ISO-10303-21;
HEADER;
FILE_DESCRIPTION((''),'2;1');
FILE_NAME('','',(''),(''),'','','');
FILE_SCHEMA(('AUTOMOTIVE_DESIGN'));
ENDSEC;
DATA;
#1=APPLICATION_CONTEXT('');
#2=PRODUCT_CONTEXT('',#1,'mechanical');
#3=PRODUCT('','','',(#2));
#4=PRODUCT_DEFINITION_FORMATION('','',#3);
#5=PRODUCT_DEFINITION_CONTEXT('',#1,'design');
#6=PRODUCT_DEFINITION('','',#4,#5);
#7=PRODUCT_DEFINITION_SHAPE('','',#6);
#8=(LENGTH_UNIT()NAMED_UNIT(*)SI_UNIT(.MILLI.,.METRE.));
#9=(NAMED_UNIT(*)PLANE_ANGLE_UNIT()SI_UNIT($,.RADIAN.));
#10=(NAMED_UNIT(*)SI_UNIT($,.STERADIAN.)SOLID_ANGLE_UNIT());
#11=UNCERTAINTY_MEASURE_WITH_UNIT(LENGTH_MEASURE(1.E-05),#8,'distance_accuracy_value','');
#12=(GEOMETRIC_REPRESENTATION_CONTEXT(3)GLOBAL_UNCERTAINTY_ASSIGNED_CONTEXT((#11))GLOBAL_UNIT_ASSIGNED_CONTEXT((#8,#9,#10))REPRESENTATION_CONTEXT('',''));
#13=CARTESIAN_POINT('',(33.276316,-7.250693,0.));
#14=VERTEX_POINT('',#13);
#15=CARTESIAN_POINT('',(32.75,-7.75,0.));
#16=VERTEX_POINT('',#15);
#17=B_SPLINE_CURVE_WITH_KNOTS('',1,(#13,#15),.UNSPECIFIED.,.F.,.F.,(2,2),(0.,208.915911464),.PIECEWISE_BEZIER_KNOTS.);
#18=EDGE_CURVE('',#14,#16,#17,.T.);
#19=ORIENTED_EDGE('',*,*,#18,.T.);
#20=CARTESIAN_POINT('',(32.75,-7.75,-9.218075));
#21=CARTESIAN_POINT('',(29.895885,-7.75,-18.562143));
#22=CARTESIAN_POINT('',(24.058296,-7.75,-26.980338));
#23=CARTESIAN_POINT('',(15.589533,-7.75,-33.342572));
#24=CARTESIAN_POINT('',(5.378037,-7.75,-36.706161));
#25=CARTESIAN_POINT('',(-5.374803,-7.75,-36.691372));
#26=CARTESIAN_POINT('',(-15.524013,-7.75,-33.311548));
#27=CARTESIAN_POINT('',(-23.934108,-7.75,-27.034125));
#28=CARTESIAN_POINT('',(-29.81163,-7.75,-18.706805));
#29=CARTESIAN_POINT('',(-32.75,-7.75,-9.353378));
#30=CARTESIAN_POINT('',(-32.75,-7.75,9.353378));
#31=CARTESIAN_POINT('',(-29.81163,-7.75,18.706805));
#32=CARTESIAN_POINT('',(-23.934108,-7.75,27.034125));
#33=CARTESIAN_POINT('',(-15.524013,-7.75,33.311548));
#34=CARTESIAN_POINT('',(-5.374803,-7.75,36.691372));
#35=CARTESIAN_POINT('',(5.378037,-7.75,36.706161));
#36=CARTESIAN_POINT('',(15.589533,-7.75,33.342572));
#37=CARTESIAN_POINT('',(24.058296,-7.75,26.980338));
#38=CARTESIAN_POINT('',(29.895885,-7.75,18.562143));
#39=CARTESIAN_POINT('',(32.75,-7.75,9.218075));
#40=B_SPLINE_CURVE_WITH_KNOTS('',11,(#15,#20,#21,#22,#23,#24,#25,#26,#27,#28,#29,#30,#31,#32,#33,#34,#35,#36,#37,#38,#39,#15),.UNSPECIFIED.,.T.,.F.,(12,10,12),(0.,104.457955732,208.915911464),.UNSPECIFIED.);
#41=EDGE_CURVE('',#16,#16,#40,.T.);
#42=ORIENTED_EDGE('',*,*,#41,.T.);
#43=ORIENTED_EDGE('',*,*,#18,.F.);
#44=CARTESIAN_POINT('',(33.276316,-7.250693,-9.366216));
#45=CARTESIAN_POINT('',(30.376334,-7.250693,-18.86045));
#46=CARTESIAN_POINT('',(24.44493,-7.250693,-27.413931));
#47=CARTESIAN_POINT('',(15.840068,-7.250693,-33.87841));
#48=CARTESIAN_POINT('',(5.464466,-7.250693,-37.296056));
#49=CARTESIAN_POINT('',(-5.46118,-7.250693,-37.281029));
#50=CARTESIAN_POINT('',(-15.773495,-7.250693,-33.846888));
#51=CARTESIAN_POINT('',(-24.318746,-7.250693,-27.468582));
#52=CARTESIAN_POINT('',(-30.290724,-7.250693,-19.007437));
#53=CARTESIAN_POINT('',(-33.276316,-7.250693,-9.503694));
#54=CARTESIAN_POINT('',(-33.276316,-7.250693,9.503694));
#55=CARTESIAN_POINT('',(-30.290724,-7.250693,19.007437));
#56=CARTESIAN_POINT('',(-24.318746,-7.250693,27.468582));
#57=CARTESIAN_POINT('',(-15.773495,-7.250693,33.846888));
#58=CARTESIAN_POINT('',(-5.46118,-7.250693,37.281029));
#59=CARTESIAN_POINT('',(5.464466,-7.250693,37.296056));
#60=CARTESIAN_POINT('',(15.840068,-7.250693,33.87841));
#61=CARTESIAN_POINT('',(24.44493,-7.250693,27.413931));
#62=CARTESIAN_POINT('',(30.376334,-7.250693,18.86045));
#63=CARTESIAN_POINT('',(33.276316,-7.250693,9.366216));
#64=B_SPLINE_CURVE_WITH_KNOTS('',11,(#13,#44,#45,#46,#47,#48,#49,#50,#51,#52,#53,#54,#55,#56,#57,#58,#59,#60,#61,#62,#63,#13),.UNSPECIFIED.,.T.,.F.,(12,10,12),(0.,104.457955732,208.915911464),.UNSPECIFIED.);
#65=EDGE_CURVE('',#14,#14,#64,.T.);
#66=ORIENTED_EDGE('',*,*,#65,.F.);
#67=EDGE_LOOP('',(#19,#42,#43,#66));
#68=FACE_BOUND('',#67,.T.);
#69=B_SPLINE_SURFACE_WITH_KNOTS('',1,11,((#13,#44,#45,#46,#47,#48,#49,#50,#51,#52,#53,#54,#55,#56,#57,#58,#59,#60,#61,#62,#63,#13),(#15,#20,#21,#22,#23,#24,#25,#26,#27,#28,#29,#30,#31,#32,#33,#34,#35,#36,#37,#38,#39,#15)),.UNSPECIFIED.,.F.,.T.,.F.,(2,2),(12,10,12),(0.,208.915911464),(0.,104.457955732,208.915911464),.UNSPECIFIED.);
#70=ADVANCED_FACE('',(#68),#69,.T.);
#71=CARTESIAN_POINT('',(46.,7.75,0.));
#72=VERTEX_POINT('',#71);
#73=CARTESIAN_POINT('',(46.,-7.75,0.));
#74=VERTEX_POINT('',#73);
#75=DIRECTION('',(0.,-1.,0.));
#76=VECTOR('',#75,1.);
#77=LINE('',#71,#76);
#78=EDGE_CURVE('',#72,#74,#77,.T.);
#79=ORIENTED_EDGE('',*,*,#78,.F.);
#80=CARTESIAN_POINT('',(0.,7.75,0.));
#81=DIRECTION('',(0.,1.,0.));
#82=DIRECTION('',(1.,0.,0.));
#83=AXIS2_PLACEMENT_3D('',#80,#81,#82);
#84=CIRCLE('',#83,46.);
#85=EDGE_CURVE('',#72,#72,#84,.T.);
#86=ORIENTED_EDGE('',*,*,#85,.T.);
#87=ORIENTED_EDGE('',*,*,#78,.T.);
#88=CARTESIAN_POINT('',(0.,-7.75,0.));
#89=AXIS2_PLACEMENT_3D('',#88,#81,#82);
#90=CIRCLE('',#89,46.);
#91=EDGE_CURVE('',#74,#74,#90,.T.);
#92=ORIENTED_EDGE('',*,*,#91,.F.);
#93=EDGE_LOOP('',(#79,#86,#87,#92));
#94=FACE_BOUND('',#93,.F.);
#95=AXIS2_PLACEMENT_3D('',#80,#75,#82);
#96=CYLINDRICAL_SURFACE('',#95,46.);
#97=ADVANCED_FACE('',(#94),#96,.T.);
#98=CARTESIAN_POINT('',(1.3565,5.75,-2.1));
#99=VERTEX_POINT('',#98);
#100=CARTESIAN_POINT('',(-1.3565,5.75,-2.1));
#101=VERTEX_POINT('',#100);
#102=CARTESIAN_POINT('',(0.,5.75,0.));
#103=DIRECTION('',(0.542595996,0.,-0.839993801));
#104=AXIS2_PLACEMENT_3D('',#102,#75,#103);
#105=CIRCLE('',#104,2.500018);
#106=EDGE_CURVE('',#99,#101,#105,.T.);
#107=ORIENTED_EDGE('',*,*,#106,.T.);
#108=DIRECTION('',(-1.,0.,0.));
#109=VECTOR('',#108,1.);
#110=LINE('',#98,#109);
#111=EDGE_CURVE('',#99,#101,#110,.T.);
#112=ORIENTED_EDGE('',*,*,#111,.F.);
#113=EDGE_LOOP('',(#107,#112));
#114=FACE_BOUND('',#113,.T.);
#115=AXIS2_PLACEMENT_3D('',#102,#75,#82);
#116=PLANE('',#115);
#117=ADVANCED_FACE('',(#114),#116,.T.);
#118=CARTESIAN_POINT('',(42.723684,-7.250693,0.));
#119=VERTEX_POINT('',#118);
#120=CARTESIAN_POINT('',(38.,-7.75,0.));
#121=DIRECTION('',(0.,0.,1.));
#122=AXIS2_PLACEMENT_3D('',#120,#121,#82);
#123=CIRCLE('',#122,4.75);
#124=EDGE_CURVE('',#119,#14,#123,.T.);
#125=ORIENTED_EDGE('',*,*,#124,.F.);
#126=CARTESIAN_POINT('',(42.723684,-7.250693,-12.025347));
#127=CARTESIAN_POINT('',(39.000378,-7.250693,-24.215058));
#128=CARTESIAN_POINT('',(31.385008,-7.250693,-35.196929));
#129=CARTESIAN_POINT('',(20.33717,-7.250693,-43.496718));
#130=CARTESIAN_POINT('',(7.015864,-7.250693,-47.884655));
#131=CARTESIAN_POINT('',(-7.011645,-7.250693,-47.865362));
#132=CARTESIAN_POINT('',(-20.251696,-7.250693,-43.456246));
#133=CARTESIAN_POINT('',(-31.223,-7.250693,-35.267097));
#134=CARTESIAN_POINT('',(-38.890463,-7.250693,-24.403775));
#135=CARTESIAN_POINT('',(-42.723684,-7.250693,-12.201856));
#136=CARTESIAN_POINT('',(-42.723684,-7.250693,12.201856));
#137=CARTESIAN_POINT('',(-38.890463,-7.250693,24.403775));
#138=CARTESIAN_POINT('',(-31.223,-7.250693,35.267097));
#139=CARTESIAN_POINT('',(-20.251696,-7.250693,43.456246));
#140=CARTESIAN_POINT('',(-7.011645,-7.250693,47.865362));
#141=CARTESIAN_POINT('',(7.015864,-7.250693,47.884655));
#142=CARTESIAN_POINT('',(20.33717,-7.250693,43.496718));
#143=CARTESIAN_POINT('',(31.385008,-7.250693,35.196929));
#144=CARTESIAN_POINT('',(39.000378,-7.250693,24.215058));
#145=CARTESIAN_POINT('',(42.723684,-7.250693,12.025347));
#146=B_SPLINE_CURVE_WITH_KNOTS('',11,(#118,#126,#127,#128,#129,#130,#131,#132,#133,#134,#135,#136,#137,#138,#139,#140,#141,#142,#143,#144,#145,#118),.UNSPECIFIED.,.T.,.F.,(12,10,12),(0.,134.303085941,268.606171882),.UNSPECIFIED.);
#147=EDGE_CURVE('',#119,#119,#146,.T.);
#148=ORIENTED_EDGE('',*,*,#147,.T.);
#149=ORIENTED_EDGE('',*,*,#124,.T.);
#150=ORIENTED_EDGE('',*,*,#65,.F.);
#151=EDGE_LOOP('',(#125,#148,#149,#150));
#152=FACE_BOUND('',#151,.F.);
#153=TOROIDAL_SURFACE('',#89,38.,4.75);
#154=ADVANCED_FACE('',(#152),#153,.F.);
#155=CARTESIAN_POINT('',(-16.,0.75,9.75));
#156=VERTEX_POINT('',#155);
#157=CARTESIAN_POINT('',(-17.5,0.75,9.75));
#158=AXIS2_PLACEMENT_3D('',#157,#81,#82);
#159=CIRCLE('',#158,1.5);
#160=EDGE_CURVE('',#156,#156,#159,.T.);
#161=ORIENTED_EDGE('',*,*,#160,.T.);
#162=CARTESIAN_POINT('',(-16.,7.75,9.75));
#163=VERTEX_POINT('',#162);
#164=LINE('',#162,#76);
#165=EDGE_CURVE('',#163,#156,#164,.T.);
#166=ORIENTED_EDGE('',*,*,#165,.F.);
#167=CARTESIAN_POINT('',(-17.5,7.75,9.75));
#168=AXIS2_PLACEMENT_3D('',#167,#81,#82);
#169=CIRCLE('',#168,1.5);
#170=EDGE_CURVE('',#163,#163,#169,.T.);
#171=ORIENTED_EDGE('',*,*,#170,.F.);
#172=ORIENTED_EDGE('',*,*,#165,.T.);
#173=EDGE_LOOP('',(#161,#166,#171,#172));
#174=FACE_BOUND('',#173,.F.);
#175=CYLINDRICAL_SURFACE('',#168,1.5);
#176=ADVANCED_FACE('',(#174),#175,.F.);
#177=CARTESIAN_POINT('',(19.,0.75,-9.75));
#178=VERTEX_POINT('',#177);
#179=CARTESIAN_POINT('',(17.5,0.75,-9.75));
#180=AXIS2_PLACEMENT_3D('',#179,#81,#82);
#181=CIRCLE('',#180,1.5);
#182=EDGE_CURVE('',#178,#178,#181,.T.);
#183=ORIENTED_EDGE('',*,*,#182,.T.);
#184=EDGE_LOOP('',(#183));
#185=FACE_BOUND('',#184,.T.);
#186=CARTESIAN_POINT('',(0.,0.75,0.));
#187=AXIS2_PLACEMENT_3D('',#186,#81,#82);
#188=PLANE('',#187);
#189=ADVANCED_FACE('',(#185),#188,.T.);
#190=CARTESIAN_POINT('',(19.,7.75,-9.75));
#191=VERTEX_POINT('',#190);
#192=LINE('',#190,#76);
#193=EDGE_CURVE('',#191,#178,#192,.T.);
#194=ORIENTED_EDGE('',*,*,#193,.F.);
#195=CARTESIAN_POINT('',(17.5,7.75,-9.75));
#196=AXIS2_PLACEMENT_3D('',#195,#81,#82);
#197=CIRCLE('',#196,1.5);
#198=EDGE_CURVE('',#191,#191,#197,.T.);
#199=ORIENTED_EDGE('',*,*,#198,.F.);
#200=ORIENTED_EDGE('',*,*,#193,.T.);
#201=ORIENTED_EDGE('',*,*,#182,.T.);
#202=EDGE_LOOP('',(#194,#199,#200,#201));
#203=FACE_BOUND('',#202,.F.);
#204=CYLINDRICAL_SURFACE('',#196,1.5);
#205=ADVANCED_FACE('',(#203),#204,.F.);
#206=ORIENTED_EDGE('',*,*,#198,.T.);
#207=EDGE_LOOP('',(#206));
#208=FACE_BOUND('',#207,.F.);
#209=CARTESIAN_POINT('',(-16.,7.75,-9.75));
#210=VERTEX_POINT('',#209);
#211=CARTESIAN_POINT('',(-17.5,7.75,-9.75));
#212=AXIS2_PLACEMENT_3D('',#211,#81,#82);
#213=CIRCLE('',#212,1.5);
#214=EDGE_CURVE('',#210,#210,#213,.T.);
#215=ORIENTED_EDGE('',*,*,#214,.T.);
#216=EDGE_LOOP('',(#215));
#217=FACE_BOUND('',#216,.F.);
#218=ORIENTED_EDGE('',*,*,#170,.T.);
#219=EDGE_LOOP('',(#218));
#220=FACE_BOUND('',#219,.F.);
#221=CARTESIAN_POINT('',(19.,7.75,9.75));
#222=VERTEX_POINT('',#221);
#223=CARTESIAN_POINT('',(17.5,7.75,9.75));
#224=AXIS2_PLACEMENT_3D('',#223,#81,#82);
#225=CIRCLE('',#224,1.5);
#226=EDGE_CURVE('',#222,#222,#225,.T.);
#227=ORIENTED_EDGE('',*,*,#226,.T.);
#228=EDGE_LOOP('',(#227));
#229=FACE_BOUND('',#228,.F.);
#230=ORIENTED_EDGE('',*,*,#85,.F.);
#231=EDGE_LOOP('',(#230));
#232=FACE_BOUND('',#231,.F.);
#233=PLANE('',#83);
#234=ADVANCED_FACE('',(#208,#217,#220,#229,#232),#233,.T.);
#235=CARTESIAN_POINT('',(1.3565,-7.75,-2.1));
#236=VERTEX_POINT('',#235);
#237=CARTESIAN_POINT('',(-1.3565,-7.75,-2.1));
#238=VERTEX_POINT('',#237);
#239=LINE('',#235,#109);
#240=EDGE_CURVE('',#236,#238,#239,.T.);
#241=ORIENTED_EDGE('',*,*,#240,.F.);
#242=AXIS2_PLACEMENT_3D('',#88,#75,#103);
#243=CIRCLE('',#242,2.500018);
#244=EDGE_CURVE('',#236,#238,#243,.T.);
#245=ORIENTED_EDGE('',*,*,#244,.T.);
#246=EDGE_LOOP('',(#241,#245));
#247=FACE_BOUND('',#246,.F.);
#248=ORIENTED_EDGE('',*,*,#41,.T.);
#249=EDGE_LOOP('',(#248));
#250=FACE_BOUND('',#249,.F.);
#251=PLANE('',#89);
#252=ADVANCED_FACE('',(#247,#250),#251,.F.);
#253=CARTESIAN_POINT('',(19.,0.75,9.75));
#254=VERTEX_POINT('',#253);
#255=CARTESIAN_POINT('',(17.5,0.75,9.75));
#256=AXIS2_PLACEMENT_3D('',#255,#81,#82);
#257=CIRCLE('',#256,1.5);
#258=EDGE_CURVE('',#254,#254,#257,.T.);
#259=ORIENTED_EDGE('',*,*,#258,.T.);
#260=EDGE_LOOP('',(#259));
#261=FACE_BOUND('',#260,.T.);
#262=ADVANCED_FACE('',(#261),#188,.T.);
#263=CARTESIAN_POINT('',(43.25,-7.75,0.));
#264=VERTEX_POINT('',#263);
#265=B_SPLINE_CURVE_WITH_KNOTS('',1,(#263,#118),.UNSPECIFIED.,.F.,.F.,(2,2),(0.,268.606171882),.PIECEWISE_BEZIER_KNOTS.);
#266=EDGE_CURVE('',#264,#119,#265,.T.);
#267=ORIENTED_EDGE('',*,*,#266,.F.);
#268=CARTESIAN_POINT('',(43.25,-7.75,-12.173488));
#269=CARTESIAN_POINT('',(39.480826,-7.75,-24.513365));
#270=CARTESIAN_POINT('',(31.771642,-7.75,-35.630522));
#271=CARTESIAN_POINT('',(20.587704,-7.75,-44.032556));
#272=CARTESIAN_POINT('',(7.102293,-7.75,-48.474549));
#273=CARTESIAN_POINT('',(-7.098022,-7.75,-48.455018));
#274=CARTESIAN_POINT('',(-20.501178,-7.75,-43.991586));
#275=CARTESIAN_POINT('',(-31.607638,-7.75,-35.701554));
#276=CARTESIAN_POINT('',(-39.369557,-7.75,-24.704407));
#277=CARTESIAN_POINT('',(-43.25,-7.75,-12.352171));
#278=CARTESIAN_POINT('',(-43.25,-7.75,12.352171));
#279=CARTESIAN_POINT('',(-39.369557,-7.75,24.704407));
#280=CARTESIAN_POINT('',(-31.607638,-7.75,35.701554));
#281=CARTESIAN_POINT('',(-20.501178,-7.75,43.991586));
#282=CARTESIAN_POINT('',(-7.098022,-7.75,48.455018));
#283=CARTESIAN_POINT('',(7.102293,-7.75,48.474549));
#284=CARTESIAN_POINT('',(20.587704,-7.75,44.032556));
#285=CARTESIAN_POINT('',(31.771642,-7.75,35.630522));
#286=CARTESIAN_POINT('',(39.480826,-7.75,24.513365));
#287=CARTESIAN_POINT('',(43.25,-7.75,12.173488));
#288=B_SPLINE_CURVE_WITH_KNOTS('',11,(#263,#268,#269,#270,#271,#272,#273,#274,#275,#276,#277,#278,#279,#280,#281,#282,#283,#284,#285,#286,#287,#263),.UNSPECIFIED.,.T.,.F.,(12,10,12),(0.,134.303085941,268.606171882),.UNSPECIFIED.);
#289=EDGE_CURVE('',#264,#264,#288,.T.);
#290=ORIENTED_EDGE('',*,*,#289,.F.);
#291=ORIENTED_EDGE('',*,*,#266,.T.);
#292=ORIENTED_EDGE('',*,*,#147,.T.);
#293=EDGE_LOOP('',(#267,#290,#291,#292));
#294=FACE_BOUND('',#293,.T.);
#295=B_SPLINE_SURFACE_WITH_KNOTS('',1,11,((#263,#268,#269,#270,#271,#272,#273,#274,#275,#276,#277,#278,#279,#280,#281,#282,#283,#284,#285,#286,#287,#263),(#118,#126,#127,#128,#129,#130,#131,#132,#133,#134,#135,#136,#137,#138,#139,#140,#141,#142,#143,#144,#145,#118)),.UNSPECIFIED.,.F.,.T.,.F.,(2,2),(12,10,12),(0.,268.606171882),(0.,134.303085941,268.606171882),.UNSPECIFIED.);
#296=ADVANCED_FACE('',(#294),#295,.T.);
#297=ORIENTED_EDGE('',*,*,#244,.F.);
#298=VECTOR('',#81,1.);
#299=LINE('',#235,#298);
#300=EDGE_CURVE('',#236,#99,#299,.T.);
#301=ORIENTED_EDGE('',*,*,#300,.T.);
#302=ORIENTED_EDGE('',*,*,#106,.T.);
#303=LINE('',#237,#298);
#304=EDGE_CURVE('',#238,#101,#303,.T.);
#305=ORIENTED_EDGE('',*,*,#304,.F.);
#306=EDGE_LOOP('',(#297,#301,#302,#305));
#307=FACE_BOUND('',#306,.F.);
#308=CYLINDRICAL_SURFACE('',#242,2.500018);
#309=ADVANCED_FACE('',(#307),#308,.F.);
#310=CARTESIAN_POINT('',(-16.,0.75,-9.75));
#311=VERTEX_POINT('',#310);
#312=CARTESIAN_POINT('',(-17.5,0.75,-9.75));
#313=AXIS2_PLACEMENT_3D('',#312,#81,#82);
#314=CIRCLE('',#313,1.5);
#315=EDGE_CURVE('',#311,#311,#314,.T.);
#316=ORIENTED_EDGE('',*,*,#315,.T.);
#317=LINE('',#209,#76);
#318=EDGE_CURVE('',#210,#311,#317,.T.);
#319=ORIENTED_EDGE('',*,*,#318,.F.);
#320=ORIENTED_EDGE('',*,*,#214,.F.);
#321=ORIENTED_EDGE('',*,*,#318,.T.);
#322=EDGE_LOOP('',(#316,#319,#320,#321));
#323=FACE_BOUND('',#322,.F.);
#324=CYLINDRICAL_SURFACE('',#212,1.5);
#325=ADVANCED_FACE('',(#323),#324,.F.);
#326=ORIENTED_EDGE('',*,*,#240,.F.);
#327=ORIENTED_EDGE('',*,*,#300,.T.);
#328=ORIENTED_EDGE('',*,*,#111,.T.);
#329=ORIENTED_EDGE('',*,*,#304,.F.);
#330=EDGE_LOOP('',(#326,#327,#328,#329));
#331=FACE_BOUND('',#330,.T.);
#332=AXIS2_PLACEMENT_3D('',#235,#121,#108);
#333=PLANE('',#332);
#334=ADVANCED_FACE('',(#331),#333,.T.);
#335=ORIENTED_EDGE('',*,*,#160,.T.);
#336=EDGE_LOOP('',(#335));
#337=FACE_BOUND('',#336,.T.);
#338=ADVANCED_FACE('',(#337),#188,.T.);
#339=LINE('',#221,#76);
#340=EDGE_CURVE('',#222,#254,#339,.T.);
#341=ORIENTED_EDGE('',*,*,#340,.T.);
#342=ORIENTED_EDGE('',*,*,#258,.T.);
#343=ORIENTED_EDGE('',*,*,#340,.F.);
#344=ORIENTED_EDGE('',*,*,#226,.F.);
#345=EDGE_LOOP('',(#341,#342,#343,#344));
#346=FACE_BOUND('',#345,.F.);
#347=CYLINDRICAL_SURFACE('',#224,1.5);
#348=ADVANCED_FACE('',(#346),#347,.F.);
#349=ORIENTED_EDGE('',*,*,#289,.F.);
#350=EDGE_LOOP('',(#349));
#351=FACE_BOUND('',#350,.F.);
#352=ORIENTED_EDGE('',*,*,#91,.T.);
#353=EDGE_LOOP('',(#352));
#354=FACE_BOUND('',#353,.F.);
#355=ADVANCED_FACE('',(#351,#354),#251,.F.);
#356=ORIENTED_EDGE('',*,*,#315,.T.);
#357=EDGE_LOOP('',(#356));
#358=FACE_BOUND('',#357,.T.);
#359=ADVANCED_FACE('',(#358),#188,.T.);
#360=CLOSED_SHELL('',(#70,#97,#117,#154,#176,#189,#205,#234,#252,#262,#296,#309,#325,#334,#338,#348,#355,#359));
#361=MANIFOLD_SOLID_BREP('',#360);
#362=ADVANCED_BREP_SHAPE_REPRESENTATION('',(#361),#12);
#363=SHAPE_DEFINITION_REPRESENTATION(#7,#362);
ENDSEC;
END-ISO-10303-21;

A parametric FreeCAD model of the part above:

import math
import FreeCAD as App
import Part
import Sketcher
from FreeCAD import Vector
Q = App.Units.Quantity


def edges_at(feature, points):
    """Names of the edges that pass closest to the given points."""
    edges = feature.Shape.Edges
    near = lambda p: min(range(len(edges)), key=lambda i: edges[i].distToShape(Part.Vertex(*p))[0])
    return sorted({f"Edge{near(p) + 1}" for p in points})

doc = App.newDocument("Part")
params = doc.addObject("Spreadsheet::Sheet", "Params")
for row, (alias, value) in enumerate([
    ("sketch1_width", "46 mm"),
    ("sketch1_radius", "4.75 mm"),
    ("sketch1_height", "15.5 mm"),
    ("revolution_angle", "360 deg"),
    ("sketch2_radius", "2.5 mm"),
    ("pocket1_length", "13.5 mm"),
    ("chamfer_size", "0.5 mm"),
    ("sketch3_diameter", "3 mm"),
    ("pocket2_length", "7 mm"),
], start=1):
    params.set(f"A{row}", alias)
    params.set(f"B{row}", "=" + value)
    params.setAlias(f"B{row}", alias)

body = doc.addObject("PartDesign::Body", "Body")

# Sketch on XY plane
sketch1 = body.newObject("Sketcher::SketchObject", "Sketch")
sketch1.AttachmentSupport = (doc.getObject("XY_Plane"), [""])
sketch1.MapMode = "FlatFace"
sketch1.addGeometry([
    Part.LineSegment(Vector(46, 7.8, 0), Vector(0, 7.8, 0)),  # 0
    Part.LineSegment(Vector(0, 7.8, 0), Vector(0, -7.8, 0)),  # 1
    Part.LineSegment(Vector(0, -7.8, 0), Vector(33.2, -7.8, 0)),  # 2
    Part.ArcOfCircle(Part.Circle(Vector(38, -7.8, 0), Vector(0, 0, 1), 4.8), math.radians(0), math.radians(180)),  # 3
    Part.LineSegment(Vector(42.8, -7.8, 0), Vector(46, -7.8, 0)),  # 4
    Part.LineSegment(Vector(46, -7.8, 0), Vector(46, 7.8, 0)),  # 5
], False)
sketch1.addConstraint([
    Sketcher.Constraint("Coincident", 0, 2, 1, 1),
    Sketcher.Constraint("Coincident", 1, 2, 2, 1),
    Sketcher.Constraint("Coincident", 2, 2, 3, 2),
    Sketcher.Constraint("Coincident", 3, 1, 4, 1),
    Sketcher.Constraint("Coincident", 4, 2, 5, 1),
    Sketcher.Constraint("Coincident", 5, 2, 0, 1),
    Sketcher.Constraint("Horizontal", 0),
    Sketcher.Constraint("Vertical", 1),
    Sketcher.Constraint("Horizontal", 2),
    Sketcher.Constraint("Horizontal", 4),
    Sketcher.Constraint("Vertical", 5),
    Sketcher.Constraint("Symmetric", 0, 2, 1, 2, -1, 1),
    Sketcher.Constraint("Horizontal", 3, 3, 1, 2),
    Sketcher.Constraint("Horizontal", 2, 2, 3, 1),
    Sketcher.Constraint("DistanceX", 0, 2, 0, 1, Q("46 mm")),
    Sketcher.Constraint("Radius", 3, Q("4.75 mm")),
    Sketcher.Constraint("DistanceY", 1, 2, 1, 1, Q("15.5 mm")),
    Sketcher.Constraint("DistanceX", -1, 1, 3, 3, Q("38 mm")),
])
sketch1.setExpression("Constraints[14]", "Params.sketch1_width")
sketch1.setExpression("Constraints[15]", "Params.sketch1_radius")
sketch1.setExpression("Constraints[16]", "Params.sketch1_height")
revolution = body.newObject("PartDesign::Revolution", "Revolution")
revolution.Profile = sketch1
revolution.ReferenceAxis = (sketch1, ["V_Axis"])
revolution.setExpression("Angle", "Params.revolution_angle")

# Sketch on XZ plane
sketch2 = body.newObject("Sketcher::SketchObject", "Sketch001")
sketch2.AttachmentSupport = (doc.getObject("XZ_Plane"), [""])
sketch2.MapMode = "FlatFace"
sketch2.AttachmentOffset = App.Placement(Vector(0, 0, 7.75), App.Rotation())
sketch2.addGeometry([
    Part.LineSegment(Vector(-1.4, -2.1, 0), Vector(1.4, -2.1, 0)),
    Part.ArcOfCircle(Part.Circle(Vector(0, 0, 0), Vector(0, 0, 1), 2.5), math.radians(-57), math.radians(237)),
], False)
sketch2.addConstraint([
    Sketcher.Constraint("Coincident", 0, 1, 1, 2),
    Sketcher.Constraint("Coincident", 1, 1, 0, 2),
    Sketcher.Constraint("Horizontal", 0),
    Sketcher.Constraint("Coincident", 1, 3, -1, 1),
    Sketcher.Constraint("Radius", 1, Q("2.5 mm")),
    Sketcher.Constraint("DistanceY", 0, 1, -1, 1, Q("2.1 mm")),
])
sketch2.setExpression("Constraints[4]", "Params.sketch2_radius")
pocket1 = body.newObject("PartDesign::Pocket", "Pocket")
pocket1.Profile = sketch2
pocket1.setExpression("Length", "Params.pocket1_length")
doc.recompute()

chamfer = body.newObject("PartDesign::Chamfer", "Chamfer")
chamfer.Base = (pocket1, edges_at(pocket1, [(-42.75, -7.75, 0), (-33.25, -7.75, 0)]))
chamfer.setExpression("Size", "Params.chamfer_size")

# Sketch on XZ plane
sketch3 = body.newObject("Sketcher::SketchObject", "Sketch002")
sketch3.AttachmentSupport = (doc.getObject("XZ_Plane"), [""])
sketch3.MapMode = "FlatFace"
sketch3.AttachmentOffset = App.Placement(Vector(0, 0, -7.75), App.Rotation())
sketch3.addGeometry([
    Part.Circle(Vector(-17.5, 9.8, 0), Vector(0, 0, 1), 1.5),
    Part.Circle(Vector(-17.5, -9.8, 0), Vector(0, 0, 1), 1.5),
    Part.Circle(Vector(17.5, 9.8, 0), Vector(0, 0, 1), 1.5),
    Part.Circle(Vector(17.5, -9.8, 0), Vector(0, 0, 1), 1.5),
], False)
sketch3.addConstraint([
    Sketcher.Constraint("Equal", 0, 1),
    Sketcher.Constraint("Equal", 1, 2),
    Sketcher.Constraint("Equal", 2, 3),
    Sketcher.Constraint("Symmetric", 1, 3, 2, 3, -1, 1),
    Sketcher.Constraint("Symmetric", 0, 3, 3, 3, -1, 1),
    Sketcher.Constraint("Symmetric", 0, 3, 2, 3, -2),
    Sketcher.Constraint("Diameter", 0, Q("3 mm")),
    Sketcher.Constraint("DistanceX", 0, 3, -1, 1, Q("17.5 mm")),
    Sketcher.Constraint("DistanceY", -1, 1, 0, 3, Q("9.75 mm")),
])
sketch3.setExpression("Constraints[6]", "Params.sketch3_diameter")
pocket2 = body.newObject("PartDesign::Pocket", "Pocket001")
pocket2.Profile = sketch3
pocket2.setExpression("Length", "Params.pocket2_length")
pocket2.Reversed = True

doc.recompute()
